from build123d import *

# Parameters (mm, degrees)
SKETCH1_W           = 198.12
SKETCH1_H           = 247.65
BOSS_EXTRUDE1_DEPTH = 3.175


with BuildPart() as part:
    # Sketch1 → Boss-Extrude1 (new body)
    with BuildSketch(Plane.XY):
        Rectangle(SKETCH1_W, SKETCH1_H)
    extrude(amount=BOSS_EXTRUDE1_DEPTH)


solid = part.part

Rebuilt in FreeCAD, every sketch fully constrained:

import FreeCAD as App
import Part
import Sketcher

V = App.Vector
Q = App.Units.Quantity

doc = App.newDocument("Part")
body = doc.addObject("PartDesign::Body", "Body")

# Sketch on XY plane
sketch1 = body.newObject("Sketcher::SketchObject", "Sketch")
sketch1.AttachmentSupport = (doc.getObject("XY_Plane"), [""])
sketch1.MapMode = "FlatFace"
sketch1.addGeometry([
    Part.LineSegment(V(-99.06, 123.825, 0), V(-99.06, -123.825, 0)),
    Part.LineSegment(V(-99.06, -123.825, 0), V(99.06, -123.825, 0)),
    Part.LineSegment(V(99.06, -123.825, 0), V(99.06, 123.825, 0)),
    Part.LineSegment(V(99.06, 123.825, 0), V(-99.06, 123.825, 0)),
], False)
sketch1.addConstraint([
    Sketcher.Constraint("Coincident", 0, 2, 1, 1),
    Sketcher.Constraint("Coincident", 1, 2, 2, 1),
    Sketcher.Constraint("Coincident", 2, 2, 3, 1),
    Sketcher.Constraint("Coincident", 3, 2, 0, 1),
    Sketcher.Constraint("Vertical", 0),
    Sketcher.Constraint("Horizontal", 1),
    Sketcher.Constraint("Vertical", 2),
    Sketcher.Constraint("Horizontal", 3),
    Sketcher.Constraint("Symmetric", 0, 2, 2, 2, -1, 1),
    Sketcher.Constraint("DistanceX", 1, 1, 1, 2, Q("7.8 in")),
    Sketcher.Constraint("DistanceY", 0, 2, 0, 1, Q("9.75 in")),
])
pad1 = body.newObject("PartDesign::Pad", "Pad")
pad1.Profile = sketch1
pad1.Length = Q("0.125 in")

doc.recompute()
